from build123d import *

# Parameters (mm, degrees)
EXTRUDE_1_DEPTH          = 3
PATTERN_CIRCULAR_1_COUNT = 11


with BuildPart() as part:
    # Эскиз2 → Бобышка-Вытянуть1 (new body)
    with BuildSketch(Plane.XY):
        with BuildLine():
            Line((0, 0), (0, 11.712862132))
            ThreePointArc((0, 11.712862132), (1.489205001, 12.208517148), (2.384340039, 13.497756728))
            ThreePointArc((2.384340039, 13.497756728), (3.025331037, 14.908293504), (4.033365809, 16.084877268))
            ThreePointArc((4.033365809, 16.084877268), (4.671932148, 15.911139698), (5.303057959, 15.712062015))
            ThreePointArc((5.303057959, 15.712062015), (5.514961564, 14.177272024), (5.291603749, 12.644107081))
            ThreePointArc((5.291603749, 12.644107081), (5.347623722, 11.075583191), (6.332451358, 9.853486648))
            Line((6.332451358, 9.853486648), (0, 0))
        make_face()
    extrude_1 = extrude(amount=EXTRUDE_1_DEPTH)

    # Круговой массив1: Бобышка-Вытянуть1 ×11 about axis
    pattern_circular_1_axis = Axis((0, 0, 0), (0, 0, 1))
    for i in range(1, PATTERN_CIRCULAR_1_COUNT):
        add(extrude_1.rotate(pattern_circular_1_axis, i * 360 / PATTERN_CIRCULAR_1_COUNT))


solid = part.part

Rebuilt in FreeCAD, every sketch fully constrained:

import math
import FreeCAD as App
import Part
import Sketcher

doc = App.newDocument("Part")
body = doc.addObject("PartDesign::Body", "Body")

# Sketch on XY plane
sketch1 = doc.addObject("Sketcher::SketchObject", "Sketch")
body.addObject(sketch1)
sketch1.AttachmentSupport = (doc.XY_Plane, [""])
sketch1.MapMode = "FlatFace"
sketch1.addGeometry(Part.LineSegment(App.Vector(0, 11.7, 0), App.Vector(0, 0, 0)), False)
sketch1.addGeometry(Part.LineSegment(App.Vector(0, 0, 0), App.Vector(6.3, 9.9, 0)), False)
sketch1.addGeometry(Part.ArcOfCircle(Part.Circle(App.Vector(7.7, 11.9, 0), App.Vector(0, 0, 1), 2.5), math.radians(164), math.radians(237)), False)
sketch1.addGeometry(Part.ArcOfCircle(Part.Circle(App.Vector(0, 14.2, 0), App.Vector(0, 0, 1), 5.5), math.radians(-16), math.radians(16)), False)
sketch1.addGeometry(Part.ArcOfCircle(Part.Circle(App.Vector(0, 0, 0), App.Vector(0, 0, 1), 16.6), math.radians(71.35), math.radians(75.92)), False)
sketch1.addGeometry(Part.ArcOfCircle(Part.Circle(App.Vector(7.7, 11.9, 0), App.Vector(0, 0, 1), 5.5), math.radians(131), math.radians(164)), False)
sketch1.addGeometry(Part.ArcOfCircle(Part.Circle(App.Vector(0, 14.2, 0), App.Vector(0, 0, 1), 2.5), math.radians(-90), math.radians(-16)), False)
sketch1.addConstraint(Sketcher.Constraint("Coincident", 0, 2, 1, 1))
sketch1.addConstraint(Sketcher.Constraint("Coincident", 1, 2, 2, 2))
sketch1.addConstraint(Sketcher.Constraint("Tangent", 2, 1, 3, 1))
sketch1.addConstraint(Sketcher.Constraint("Coincident", 3, 2, 4, 1))
sketch1.addConstraint(Sketcher.Constraint("Coincident", 4, 2, 5, 1))
sketch1.addConstraint(Sketcher.Constraint("Tangent", 5, 2, 6, 2))
sketch1.addConstraint(Sketcher.Constraint("Coincident", 6, 1, 0, 1))
sketch1.addConstraint(Sketcher.Constraint("Vertical", 0))
sketch1.addConstraint(Sketcher.Constraint("Coincident", 4, 3, -1, 1))
sketch1.addConstraint(Sketcher.Constraint("Coincident", 0, 2, -1, 1))
sketch1.addConstraint(Sketcher.Constraint("Coincident", 5, 3, 2, 3))
sketch1.addConstraint(Sketcher.Constraint("Coincident", 6, 3, 3, 3))
sketch1.addConstraint(Sketcher.Constraint("Equal", 3, 5))
sketch1.addConstraint(Sketcher.Constraint("PointOnObject", 3, 3, -2))
sketch1.addConstraint(Sketcher.Constraint("Radius", 2, 2.485))
sketch1.addConstraint(Sketcher.Constraint("Radius", 3, 5.515))
sketch1.addConstraint(Sketcher.Constraint("Radius", 4, 16.582862))
sketch1.addConstraint(Sketcher.Constraint("DistanceY", -1, 1, 2, 3, 11.944002))
sketch1.addConstraint(Sketcher.Constraint("DistanceY", 3, 3, 3, 2, 1.5142))
sketch1.addConstraint(Sketcher.Constraint("DistanceX", -1, 1, 1, 2, 6.332451))
pad1 = doc.addObject("PartDesign::Pad", "Pad")
body.addObject(pad1)
pad1.Profile = sketch1
pad1.Length = 3
doc.recompute()

polarpattern = doc.addObject("PartDesign::PolarPattern", "PolarPattern")
body.addObject(polarpattern)
polarpattern.Originals = [pad1]
polarpattern.Axis = (doc.Z_Axis, [""])
polarpattern.Angle = 360
polarpattern.Occurrences = 11
body.Tip = polarpattern

doc.recompute()
